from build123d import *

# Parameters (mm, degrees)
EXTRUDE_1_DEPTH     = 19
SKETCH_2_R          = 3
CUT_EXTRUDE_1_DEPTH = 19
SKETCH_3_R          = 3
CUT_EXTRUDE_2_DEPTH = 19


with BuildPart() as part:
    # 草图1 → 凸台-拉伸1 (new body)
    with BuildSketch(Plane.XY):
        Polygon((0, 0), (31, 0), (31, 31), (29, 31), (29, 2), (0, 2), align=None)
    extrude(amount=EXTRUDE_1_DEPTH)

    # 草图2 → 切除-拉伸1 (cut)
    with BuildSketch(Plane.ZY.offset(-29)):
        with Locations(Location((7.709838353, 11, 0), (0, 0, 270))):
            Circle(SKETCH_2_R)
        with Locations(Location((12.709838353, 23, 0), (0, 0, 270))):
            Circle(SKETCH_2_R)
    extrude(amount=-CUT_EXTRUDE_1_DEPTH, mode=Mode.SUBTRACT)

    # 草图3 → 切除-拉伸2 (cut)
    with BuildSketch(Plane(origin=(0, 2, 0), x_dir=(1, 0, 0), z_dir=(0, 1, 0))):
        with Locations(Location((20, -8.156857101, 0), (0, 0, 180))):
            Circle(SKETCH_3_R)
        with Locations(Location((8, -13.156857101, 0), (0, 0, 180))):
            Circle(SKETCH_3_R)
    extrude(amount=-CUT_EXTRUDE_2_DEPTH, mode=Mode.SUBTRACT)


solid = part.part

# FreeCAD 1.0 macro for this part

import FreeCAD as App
import Part
import Sketcher

V = App.Vector


def add_polygon(sketch, points):
    """Adds a closed chain of lines whose ends are joined by coincident constraints."""
    first, n = sketch.GeometryCount, len(points)
    for a, b in zip(points, points[1:] + points[:1]):
        sketch.addGeometry(Part.LineSegment(App.Vector(*a, 0), App.Vector(*b, 0)), False)
    for i in range(n):
        sketch.addConstraint(Sketcher.Constraint("Coincident", first + i, 2, first + (i + 1) % n, 1))

doc = App.newDocument("Part")
body = doc.addObject("PartDesign::Body", "Body")

sketch1 = body.newObject("Sketcher::SketchObject", "Sketch")
sketch1.AttachmentSupport = (doc.getObject("XY_Plane"), [""])
sketch1.MapMode = "FlatFace"
add_polygon(sketch1, [(0, 0), (31, 0), (31, 31), (29, 31), (29, 2), (0, 2)])
sketch1.addConstraint([
    Sketcher.Constraint("Horizontal", 0),
    Sketcher.Constraint("Vertical", 1),
    Sketcher.Constraint("Horizontal", 2),
    Sketcher.Constraint("Vertical", 3),
    Sketcher.Constraint("Horizontal", 4),
    Sketcher.Constraint("Vertical", 5),
    Sketcher.Constraint("Coincident", 5, 2, -1, 1),
    Sketcher.Constraint("Equal", 0, 1),
    Sketcher.Constraint("Equal", 4, 3),
    Sketcher.Constraint("DistanceX", 0, 1, 0, 2, 31.0),
    Sketcher.Constraint("DistanceX", 2, 2, 2, 1, 2.0),
])
pad1 = body.newObject("PartDesign::Pad", "Pad")
pad1.Profile = sketch1
pad1.Length = 19

sketch2 = body.newObject("Sketcher::SketchObject", "Sketch001")
sketch2.AttachmentSupport = (doc.getObject("YZ_Plane"), [""])
sketch2.MapMode = "FlatFace"
sketch2.AttachmentOffset = App.Placement(V(0, 0, 29), App.Rotation())
sketch2.addGeometry([
    Part.Circle(V(11, 7.7, 0), V(0, 0, 1), 3),
    Part.Circle(V(23, 12.7, 0), V(0, 0, 1), 3),
], False)
sketch2.addConstraint([
    Sketcher.Constraint("Equal", 0, 1),
    Sketcher.Constraint("Diameter", 0, 6.0),
    Sketcher.Constraint("DistanceX", -1, 1, 0, 3, 11.0),
    Sketcher.Constraint("DistanceX", -1, 1, 1, 3, 23.0),
    Sketcher.Constraint("DistanceY", 0, 3, 1, 3, 5.0),
    Sketcher.Constraint("DistanceY", -1, 1, 0, 3, 7.709838),
])
pocket1 = body.newObject("PartDesign::Pocket", "Pocket")
pocket1.Profile = sketch2
pocket1.Length = 19
pocket1.Reversed = True

sketch3 = body.newObject("Sketcher::SketchObject", "Sketch002")
sketch3.AttachmentSupport = (doc.getObject("XZ_Plane"), [""])
sketch3.MapMode = "FlatFace"
sketch3.AttachmentOffset = App.Placement(V(0, 0, -2), App.Rotation())
sketch3.addGeometry([
    Part.Circle(V(20, 8.2, 0), V(0, 0, 1), 3),
    Part.Circle(V(8, 13.2, 0), V(0, 0, 1), 3),
], False)
sketch3.addConstraint([
    Sketcher.Constraint("Equal", 0, 1),
    Sketcher.Constraint("Diameter", 0, 6.0),
    Sketcher.Constraint("DistanceX", -1, 1, 0, 3, 20.0),
    Sketcher.Constraint("DistanceX", -1, 1, 1, 3, 8.0),
    Sketcher.Constraint("DistanceY", 0, 3, 1, 3, 5.0),
    Sketcher.Constraint("DistanceY", -1, 1, 0, 3, 8.156857),
])
pocket2 = body.newObject("PartDesign::Pocket", "Pocket001")
pocket2.Profile = sketch3
pocket2.Length = 19
pocket2.Reversed = True

doc.recompute()
